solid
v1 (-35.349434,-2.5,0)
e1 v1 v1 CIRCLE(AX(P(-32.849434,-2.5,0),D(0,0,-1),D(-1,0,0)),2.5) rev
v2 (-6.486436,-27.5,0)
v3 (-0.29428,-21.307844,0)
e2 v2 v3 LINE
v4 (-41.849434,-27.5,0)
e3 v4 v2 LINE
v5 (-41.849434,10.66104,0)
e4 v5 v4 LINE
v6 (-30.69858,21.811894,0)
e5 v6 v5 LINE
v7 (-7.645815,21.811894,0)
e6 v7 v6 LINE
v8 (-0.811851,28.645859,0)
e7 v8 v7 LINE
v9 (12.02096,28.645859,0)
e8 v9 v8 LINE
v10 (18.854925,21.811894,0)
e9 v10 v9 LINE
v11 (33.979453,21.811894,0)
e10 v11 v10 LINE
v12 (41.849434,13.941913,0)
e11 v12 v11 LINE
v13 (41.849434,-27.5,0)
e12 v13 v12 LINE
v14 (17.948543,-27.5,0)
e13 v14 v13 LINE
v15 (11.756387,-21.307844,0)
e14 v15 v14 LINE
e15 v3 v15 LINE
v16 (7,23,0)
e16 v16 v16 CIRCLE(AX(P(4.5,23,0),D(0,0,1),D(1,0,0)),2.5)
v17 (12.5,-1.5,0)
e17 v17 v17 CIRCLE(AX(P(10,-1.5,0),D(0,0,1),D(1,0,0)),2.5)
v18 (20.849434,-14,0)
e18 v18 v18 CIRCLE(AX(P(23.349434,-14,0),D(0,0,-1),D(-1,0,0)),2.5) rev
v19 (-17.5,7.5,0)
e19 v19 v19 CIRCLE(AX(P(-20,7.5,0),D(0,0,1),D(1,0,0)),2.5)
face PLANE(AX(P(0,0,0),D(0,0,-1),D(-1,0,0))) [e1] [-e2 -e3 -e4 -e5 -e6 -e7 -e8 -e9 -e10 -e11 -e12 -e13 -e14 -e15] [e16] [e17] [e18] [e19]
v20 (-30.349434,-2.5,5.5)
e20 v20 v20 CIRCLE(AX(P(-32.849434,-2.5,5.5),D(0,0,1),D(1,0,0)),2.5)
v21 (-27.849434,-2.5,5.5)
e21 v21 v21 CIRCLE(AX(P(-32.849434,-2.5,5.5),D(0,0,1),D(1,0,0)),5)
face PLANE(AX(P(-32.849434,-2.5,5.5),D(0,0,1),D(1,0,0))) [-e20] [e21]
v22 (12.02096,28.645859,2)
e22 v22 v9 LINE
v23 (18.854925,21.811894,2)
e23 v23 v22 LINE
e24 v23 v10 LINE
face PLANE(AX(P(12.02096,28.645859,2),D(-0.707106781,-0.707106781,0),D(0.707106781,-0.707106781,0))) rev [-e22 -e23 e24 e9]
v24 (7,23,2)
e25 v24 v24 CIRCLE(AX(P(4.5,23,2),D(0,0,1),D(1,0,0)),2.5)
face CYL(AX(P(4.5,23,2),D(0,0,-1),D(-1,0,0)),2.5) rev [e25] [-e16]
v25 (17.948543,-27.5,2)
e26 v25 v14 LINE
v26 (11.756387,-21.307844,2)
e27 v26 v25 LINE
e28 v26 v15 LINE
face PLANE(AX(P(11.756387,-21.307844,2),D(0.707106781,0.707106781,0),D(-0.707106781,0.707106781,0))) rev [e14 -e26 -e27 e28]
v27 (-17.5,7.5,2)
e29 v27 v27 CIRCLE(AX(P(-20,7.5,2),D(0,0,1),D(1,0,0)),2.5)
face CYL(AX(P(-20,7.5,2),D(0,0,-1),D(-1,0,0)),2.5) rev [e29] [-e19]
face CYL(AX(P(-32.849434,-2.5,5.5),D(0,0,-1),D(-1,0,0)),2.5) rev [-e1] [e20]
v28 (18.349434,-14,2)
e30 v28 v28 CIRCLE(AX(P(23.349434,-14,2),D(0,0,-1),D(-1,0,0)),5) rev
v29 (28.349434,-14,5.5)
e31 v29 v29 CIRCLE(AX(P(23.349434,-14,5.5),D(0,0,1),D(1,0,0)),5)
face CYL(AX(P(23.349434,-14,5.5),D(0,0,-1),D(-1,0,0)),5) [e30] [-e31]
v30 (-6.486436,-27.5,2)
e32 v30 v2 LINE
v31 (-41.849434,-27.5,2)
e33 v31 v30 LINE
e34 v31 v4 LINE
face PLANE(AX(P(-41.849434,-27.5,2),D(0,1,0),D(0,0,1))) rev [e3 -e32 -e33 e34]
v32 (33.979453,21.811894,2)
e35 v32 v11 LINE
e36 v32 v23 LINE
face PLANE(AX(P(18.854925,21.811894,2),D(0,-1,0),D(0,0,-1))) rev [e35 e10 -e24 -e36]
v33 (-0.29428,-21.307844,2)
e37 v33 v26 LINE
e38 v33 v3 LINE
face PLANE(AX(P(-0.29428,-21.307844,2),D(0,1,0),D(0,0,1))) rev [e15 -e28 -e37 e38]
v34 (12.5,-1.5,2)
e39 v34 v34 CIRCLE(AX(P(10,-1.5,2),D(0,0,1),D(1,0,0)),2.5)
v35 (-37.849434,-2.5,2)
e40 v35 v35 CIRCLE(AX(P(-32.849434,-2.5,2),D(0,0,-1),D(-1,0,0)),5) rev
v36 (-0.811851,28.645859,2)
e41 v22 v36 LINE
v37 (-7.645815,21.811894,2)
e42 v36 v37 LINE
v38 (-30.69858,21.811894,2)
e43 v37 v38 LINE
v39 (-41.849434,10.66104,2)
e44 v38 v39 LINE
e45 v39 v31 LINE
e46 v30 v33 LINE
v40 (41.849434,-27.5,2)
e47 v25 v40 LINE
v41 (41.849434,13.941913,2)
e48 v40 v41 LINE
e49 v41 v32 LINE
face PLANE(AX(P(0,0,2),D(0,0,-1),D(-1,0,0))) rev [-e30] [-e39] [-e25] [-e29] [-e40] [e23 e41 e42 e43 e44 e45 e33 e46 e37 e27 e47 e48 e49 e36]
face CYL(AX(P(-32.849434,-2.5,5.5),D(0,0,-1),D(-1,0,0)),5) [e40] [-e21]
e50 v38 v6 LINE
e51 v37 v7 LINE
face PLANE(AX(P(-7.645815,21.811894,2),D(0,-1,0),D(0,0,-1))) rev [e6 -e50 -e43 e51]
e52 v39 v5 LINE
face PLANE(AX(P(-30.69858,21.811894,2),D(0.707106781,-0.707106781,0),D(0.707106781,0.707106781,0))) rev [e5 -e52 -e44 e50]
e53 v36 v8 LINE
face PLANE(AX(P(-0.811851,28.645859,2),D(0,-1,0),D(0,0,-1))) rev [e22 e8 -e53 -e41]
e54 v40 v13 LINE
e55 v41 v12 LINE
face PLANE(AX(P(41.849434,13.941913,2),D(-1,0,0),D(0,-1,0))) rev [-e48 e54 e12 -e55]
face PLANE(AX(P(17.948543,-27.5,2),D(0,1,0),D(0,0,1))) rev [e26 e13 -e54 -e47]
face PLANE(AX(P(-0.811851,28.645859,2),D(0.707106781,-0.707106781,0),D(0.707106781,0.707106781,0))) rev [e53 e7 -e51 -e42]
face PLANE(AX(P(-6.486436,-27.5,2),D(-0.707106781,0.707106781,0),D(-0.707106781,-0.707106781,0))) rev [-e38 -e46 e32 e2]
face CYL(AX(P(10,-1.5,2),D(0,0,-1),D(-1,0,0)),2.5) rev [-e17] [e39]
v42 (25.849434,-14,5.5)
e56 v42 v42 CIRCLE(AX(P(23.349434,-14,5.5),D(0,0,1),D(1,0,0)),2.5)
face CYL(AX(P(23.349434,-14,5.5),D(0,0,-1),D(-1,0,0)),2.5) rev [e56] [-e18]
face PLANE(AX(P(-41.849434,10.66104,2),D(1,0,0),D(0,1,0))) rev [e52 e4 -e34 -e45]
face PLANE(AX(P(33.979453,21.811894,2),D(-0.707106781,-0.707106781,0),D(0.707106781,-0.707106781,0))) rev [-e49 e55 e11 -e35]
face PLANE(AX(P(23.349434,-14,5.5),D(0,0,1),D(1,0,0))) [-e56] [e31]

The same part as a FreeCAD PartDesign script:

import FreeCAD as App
import Part
import Sketcher
Q = App.Units.Quantity

doc = App.newDocument("Part")
params = doc.addObject("Spreadsheet::Sheet", "Params")
for row, (alias, value) in enumerate([
    ("sketch1_diameter", "5 mm"),
    ("pad1_length", "2 mm"),
    ("sketch2_diameter", "10 mm"),
    ("sketch2_diameter2", "5 mm"),
    ("pad2_length", "3.5 mm"),
    ("sketch3_diameter", "5 mm"),
    ("sketch4_diameter", "5 mm"),
], start=1):
    params.set(f"A{row}", alias)
    params.set(f"B{row}", "=" + value)
    params.setAlias(f"B{row}", alias)

body = doc.addObject("PartDesign::Body", "Body")

# Sketch on XY plane
sketch1 = body.newObject("Sketcher::SketchObject", "Sketch")
sketch1.AttachmentSupport = (doc.getObject("XY_Plane"), [""])
sketch1.MapMode = "FlatFace"
sketch1.addGeometry([
    Part.LineSegment(App.Vector(-6.5, -27.5, 0), App.Vector(-0.3, -21.3, 0)),  # 0
    Part.LineSegment(App.Vector(-0.3, -21.3, 0), App.Vector(11.8, -21.3, 0)),  # 1
    Part.LineSegment(App.Vector(11.8, -21.3, 0), App.Vector(17.9, -27.5, 0)),  # 2
    Part.LineSegment(App.Vector(17.9, -27.5, 0), App.Vector(41.8, -27.5, 0)),  # 3
    Part.LineSegment(App.Vector(41.8, -27.5, 0), App.Vector(41.8, 13.9, 0)),  # 4
    Part.LineSegment(App.Vector(41.8, 13.9, 0), App.Vector(34, 21.8, 0)),  # 5
    Part.LineSegment(App.Vector(34, 21.8, 0), App.Vector(18.9, 21.8, 0)),  # 6
    Part.LineSegment(App.Vector(18.9, 21.8, 0), App.Vector(12, 28.6, 0)),  # 7
    Part.LineSegment(App.Vector(12, 28.6, 0), App.Vector(-0.8, 28.6, 0)),  # 8
    Part.LineSegment(App.Vector(-0.8, 28.6, 0), App.Vector(-7.6, 21.8, 0)),  # 9
    Part.LineSegment(App.Vector(-7.6, 21.8, 0), App.Vector(-30.7, 21.8, 0)),  # 10
    Part.LineSegment(App.Vector(-30.7, 21.8, 0), App.Vector(-41.8, 10.7, 0)),  # 11
    Part.LineSegment(App.Vector(-41.8, 10.7, 0), App.Vector(-41.8, -27.5, 0)),  # 12
    Part.LineSegment(App.Vector(-41.8, -27.5, 0), App.Vector(-6.5, -27.5, 0)),  # 13
    Part.Circle(App.Vector(-20, 7.5, 0), App.Vector(0, 0, 1), 2.5),  # 14
    Part.Circle(App.Vector(10, -1.5, 0), App.Vector(0, 0, 1), 2.5),  # 15
    Part.Circle(App.Vector(4.5, 23, 0), App.Vector(0, 0, 1), 2.5),  # 16
], False)
sketch1.addConstraint([
    Sketcher.Constraint("Coincident", 0, 2, 1, 1),
    Sketcher.Constraint("Coincident", 1, 2, 2, 1),
    Sketcher.Constraint("Coincident", 2, 2, 3, 1),
    Sketcher.Constraint("Coincident", 3, 2, 4, 1),
    Sketcher.Constraint("Coincident", 4, 2, 5, 1),
    Sketcher.Constraint("Coincident", 5, 2, 6, 1),
    Sketcher.Constraint("Coincident", 6, 2, 7, 1),
    Sketcher.Constraint("Coincident", 7, 2, 8, 1),
    Sketcher.Constraint("Coincident", 8, 2, 9, 1),
    Sketcher.Constraint("Coincident", 9, 2, 10, 1),
    Sketcher.Constraint("Coincident", 10, 2, 11, 1),
    Sketcher.Constraint("Coincident", 11, 2, 12, 1),
    Sketcher.Constraint("Coincident", 12, 2, 13, 1),
    Sketcher.Constraint("Coincident", 13, 2, 0, 1),
    Sketcher.Constraint("Horizontal", 1),
    Sketcher.Constraint("Horizontal", 3),
    Sketcher.Constraint("Vertical", 4),
    Sketcher.Constraint("Horizontal", 6),
    Sketcher.Constraint("Horizontal", 8),
    Sketcher.Constraint("Horizontal", 10),
    Sketcher.Constraint("Vertical", 12),
    Sketcher.Constraint("Horizontal", 13),
    Sketcher.Constraint("Equal", 14, 15),
    Sketcher.Constraint("Equal", 15, 16),
    Sketcher.Constraint("Symmetric", 3, 2, 12, 2, -2),
    Sketcher.Constraint("Perpendicular", 0, 2),
    Sketcher.Constraint("Parallel", 2, 5),
    Sketcher.Constraint("Parallel", 5, 7),
    Sketcher.Constraint("Perpendicular", 7, 9),
    Sketcher.Constraint("Parallel", 9, 11),
    Sketcher.Constraint("Horizontal", 6, 2, 9, 2),
    Sketcher.Constraint("Equal", 0, 2),
    Sketcher.Constraint("Diameter", 14, Q("5 mm")),
    Sketcher.Constraint("DistanceX", 14, 3, -1, 1, Q("20 mm")),
    Sketcher.Constraint("DistanceX", -1, 1, 15, 3, Q("10 mm")),
    Sketcher.Constraint("DistanceY", -1, 1, 16, 3, Q("23 mm")),
    Sketcher.Constraint("DistanceY", 15, 3, 14, 3, Q("9 mm")),
    Sketcher.Constraint("DistanceY", 2, 2, 15, 3, Q("26 mm")),
    Sketcher.Constraint("DistanceY", -1, 1, 14, 3, Q("7.5 mm")),
    Sketcher.Constraint("DistanceX", -1, 1, 16, 3, Q("4.5 mm")),
    Sketcher.Constraint("DistanceX", 13, 1, 13, 2, Q("35.362998 mm")),
    Sketcher.Constraint("DistanceX", 3, 1, 3, 2, Q("23.900891 mm")),
    Sketcher.Constraint("DistanceX", 8, 2, 8, 1, Q("12.832811 mm")),
    Sketcher.Constraint("DistanceY", 12, 2, 12, 1, Q("38.16104 mm")),
    Sketcher.Constraint("Distance", 0, Q("8.757031 mm")),
    Sketcher.Constraint("Distance", 11, Q("15.769689 mm")),
    Sketcher.Constraint("DistanceX", 1, 1, 1, 2, Q("12.050667 mm")),
    Sketcher.Constraint("DistanceX", 6, 2, 6, 1, Q("15.124528 mm")),
    Sketcher.Constraint("DistanceX", 10, 2, 10, 1, Q("23.052765 mm")),
    Sketcher.Constraint("DistanceY", 4, 1, 4, 2, Q("41.441913 mm")),
])
sketch1.setExpression("Constraints[32]", "Params.sketch1_diameter")
pad1 = body.newObject("PartDesign::Pad", "Pad")
pad1.Profile = sketch1
pad1.setExpression("Length", "Params.pad1_length")

# Sketch on XY plane
sketch2 = body.newObject("Sketcher::SketchObject", "Sketch001")
sketch2.AttachmentSupport = (doc.getObject("XY_Plane"), [""])
sketch2.MapMode = "FlatFace"
sketch2.AttachmentOffset = App.Placement(App.Vector(0, 0, 2), App.Rotation())
sketch2.addGeometry([
    Part.Circle(App.Vector(-32.8, -2.5, 0), App.Vector(0, 0, 1), 5),
    Part.Circle(App.Vector(-32.8, -2.5, 0), App.Vector(0, 0, 1), 2.5),
    Part.Circle(App.Vector(23.3, -14, 0), App.Vector(0, 0, 1), 5),
    Part.Circle(App.Vector(23.3, -14, 0), App.Vector(0, 0, 1), 2.5),
], False)
sketch2.addConstraint([
    Sketcher.Constraint("Coincident", 1, 3, 0, 3),
    Sketcher.Constraint("Coincident", 3, 3, 2, 3),
    Sketcher.Constraint("Equal", 0, 2),
    Sketcher.Constraint("Equal", 1, 3),
    Sketcher.Constraint("Diameter", 0, Q("10 mm")),
    Sketcher.Constraint("Diameter", 1, Q("5 mm")),
    Sketcher.Constraint("DistanceY", 2, 3, -1, 1, Q("14 mm")),
    Sketcher.Constraint("DistanceY", 0, 3, -1, 1, Q("2.5 mm")),
    Sketcher.Constraint("DistanceX", 0, 3, -1, 1, Q("32.849434 mm")),
    Sketcher.Constraint("DistanceX", -1, 1, 2, 3, Q("23.349434 mm")),
])
sketch2.setExpression("Constraints[4]", "Params.sketch2_diameter")
sketch2.setExpression("Constraints[5]", "Params.sketch2_diameter2")
pad2 = body.newObject("PartDesign::Pad", "Pad001")
pad2.Profile = sketch2
pad2.setExpression("Length", "Params.pad2_length")

# Sketch on XY plane
sketch3 = body.newObject("Sketcher::SketchObject", "Sketch002")
sketch3.AttachmentSupport = (doc.getObject("XY_Plane"), [""])
sketch3.MapMode = "FlatFace"
sketch3.AttachmentOffset = App.Placement(App.Vector(0, 0, 2), App.Rotation())
sketch3.addGeometry(Part.Circle(App.Vector(-32.8, -2.5, 0), App.Vector(0, 0, 1), 2.5), False)
sketch3.addConstraint([
    Sketcher.Constraint("Diameter", 0, Q("5 mm")),
    Sketcher.Constraint("DistanceY", 0, 3, -1, 1, Q("2.5 mm")),
    Sketcher.Constraint("DistanceX", 0, 3, -1, 1, Q("32.849434 mm")),
])
sketch3.setExpression("Constraints[0]", "Params.sketch3_diameter")
pocket1 = body.newObject("PartDesign::Pocket", "Pocket")
pocket1.Profile = sketch3
pocket1.Type = "UpToFirst"

# Sketch on XY plane
sketch4 = body.newObject("Sketcher::SketchObject", "Sketch003")
sketch4.AttachmentSupport = (doc.getObject("XY_Plane"), [""])
sketch4.MapMode = "FlatFace"
sketch4.AttachmentOffset = App.Placement(App.Vector(0, 0, 2), App.Rotation())
sketch4.addGeometry(Part.Circle(App.Vector(23.3, -14, 0), App.Vector(0, 0, 1), 2.5), False)
sketch4.addConstraint([
    Sketcher.Constraint("Diameter", 0, Q("5 mm")),
    Sketcher.Constraint("DistanceY", 0, 3, -1, 1, Q("14 mm")),
    Sketcher.Constraint("DistanceX", -1, 1, 0, 3, Q("23.349434 mm")),
])
sketch4.setExpression("Constraints[0]", "Params.sketch4_diameter")
pocket2 = body.newObject("PartDesign::Pocket", "Pocket001")
pocket2.Profile = sketch4
pocket2.Type = "UpToFirst"

doc.recompute()
